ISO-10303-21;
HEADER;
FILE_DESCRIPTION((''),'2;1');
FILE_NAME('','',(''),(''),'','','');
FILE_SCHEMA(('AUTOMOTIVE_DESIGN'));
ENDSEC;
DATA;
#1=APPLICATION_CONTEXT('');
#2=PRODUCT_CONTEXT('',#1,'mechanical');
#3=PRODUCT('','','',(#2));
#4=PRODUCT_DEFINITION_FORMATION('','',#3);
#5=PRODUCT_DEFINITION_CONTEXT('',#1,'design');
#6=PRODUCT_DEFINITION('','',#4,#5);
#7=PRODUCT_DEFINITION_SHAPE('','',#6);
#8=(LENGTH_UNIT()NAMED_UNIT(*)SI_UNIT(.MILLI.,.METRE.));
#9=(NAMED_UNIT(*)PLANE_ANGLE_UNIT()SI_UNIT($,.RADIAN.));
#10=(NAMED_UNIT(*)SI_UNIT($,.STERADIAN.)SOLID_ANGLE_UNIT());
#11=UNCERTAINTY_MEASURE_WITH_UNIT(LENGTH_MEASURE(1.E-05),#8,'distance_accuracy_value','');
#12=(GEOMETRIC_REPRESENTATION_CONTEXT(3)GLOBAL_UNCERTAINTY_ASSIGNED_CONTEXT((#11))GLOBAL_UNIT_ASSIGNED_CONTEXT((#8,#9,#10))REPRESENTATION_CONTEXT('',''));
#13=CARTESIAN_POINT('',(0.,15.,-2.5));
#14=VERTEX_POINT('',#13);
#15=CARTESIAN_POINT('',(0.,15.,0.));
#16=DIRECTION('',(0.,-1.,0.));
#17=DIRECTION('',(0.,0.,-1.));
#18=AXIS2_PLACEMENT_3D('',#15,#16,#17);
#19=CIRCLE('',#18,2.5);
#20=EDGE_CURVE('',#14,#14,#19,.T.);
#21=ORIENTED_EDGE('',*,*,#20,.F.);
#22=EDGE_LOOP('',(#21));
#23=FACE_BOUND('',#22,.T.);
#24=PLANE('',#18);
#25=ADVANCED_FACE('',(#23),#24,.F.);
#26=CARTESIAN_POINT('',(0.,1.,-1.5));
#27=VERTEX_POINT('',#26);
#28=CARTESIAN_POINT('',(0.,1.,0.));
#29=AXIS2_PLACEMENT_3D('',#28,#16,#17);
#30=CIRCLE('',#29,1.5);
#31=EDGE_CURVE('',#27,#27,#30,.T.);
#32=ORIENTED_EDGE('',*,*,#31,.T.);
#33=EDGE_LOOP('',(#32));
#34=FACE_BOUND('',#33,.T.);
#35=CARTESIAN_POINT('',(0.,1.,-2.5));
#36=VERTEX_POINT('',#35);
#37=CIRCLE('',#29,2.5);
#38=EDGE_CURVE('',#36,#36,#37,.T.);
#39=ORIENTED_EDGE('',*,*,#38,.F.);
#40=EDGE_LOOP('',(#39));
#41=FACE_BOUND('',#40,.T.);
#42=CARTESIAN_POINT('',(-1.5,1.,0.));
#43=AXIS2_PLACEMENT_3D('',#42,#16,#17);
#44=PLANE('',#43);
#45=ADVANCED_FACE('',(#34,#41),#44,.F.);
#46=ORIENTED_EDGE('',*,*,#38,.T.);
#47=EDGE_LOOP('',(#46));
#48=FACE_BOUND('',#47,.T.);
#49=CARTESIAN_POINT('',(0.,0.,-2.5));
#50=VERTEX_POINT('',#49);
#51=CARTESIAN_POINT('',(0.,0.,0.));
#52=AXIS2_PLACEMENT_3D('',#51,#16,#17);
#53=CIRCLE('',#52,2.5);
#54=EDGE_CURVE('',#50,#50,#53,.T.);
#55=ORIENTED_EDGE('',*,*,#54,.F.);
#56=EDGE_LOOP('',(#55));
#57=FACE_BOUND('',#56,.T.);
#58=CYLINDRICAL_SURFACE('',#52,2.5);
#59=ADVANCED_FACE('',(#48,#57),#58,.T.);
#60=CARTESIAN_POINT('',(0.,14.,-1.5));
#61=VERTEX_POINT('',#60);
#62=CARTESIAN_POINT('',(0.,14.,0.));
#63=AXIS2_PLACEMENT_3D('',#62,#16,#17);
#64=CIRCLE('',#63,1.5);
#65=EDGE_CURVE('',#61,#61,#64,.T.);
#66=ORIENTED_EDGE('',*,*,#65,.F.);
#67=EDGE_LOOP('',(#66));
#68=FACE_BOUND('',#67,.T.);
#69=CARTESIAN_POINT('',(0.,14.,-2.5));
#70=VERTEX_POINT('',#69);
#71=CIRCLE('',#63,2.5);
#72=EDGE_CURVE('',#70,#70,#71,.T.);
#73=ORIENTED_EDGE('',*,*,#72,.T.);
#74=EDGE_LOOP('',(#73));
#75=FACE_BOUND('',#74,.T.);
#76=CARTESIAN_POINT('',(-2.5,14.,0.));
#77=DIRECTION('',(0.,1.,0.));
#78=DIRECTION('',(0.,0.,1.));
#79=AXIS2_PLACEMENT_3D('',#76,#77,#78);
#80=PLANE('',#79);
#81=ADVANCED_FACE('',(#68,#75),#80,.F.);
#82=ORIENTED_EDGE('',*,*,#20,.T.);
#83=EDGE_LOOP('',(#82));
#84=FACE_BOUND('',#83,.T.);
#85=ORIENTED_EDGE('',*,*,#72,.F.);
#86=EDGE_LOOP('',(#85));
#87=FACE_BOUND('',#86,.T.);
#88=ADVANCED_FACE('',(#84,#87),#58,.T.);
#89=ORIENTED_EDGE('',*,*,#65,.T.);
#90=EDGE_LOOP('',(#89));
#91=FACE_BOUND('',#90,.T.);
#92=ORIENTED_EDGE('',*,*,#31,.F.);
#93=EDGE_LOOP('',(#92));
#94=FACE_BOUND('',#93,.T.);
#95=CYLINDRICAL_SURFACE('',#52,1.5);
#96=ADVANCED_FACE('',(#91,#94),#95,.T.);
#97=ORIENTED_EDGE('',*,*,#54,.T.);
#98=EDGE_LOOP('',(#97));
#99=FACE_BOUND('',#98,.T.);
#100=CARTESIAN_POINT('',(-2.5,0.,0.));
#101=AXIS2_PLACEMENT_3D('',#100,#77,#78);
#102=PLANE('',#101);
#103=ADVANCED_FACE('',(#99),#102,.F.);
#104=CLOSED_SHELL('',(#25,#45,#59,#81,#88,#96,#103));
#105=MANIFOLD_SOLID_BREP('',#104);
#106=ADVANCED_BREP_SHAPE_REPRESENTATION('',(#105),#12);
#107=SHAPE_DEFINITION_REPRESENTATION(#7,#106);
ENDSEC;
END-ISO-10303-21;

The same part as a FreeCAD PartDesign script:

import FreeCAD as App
import Part
import Sketcher

doc = App.newDocument("Part")
body = doc.addObject("PartDesign::Body", "Body")

sketch1 = doc.addObject("Sketcher::SketchObject", "Sketch")
body.addObject(sketch1)
sketch1.AttachmentSupport = (doc.XY_Plane, [""])
sketch1.MapMode = "FlatFace"
sketch1.addGeometry([
    Part.LineSegment(App.Vector(0, 0, 0), App.Vector(0, 15, 0)),
    Part.LineSegment(App.Vector(0, 15, 0), App.Vector(-2.5, 15, 0)),
    Part.LineSegment(App.Vector(-2.5, 15, 0), App.Vector(-2.5, 14, 0)),
    Part.LineSegment(App.Vector(-2.5, 14, 0), App.Vector(-1.5, 14, 0)),
    Part.LineSegment(App.Vector(-1.5, 14, 0), App.Vector(-1.5, 1, 0)),
    Part.LineSegment(App.Vector(-1.5, 1, 0), App.Vector(-2.5, 1, 0)),
    Part.LineSegment(App.Vector(-2.5, 1, 0), App.Vector(-2.5, 0, 0)),
    Part.LineSegment(App.Vector(-2.5, 0, 0), App.Vector(0, 0, 0)),
], False)
sketch1.addConstraint([
    Sketcher.Constraint("Coincident", 0, 2, 1, 1),
    Sketcher.Constraint("Coincident", 1, 2, 2, 1),
    Sketcher.Constraint("Coincident", 2, 2, 3, 1),
    Sketcher.Constraint("Coincident", 3, 2, 4, 1),
    Sketcher.Constraint("Coincident", 4, 2, 5, 1),
    Sketcher.Constraint("Coincident", 5, 2, 6, 1),
    Sketcher.Constraint("Coincident", 6, 2, 7, 1),
    Sketcher.Constraint("Coincident", 7, 2, 0, 1),
    Sketcher.Constraint("Vertical", 0),
    Sketcher.Constraint("Horizontal", 1),
    Sketcher.Constraint("Vertical", 2),
    Sketcher.Constraint("Horizontal", 3),
    Sketcher.Constraint("Vertical", 4),
    Sketcher.Constraint("Horizontal", 5),
    Sketcher.Constraint("Vertical", 6),
    Sketcher.Constraint("Horizontal", 7),
    Sketcher.Constraint("Coincident", 7, 2, -1, 1),
    Sketcher.Constraint("Vertical", 2, 2, 5, 2),
    Sketcher.Constraint("Equal", 5, 2),
    Sketcher.Constraint("Equal", 2, 6),
    Sketcher.Constraint("DistanceX", 3, 1, 3, 2, 1.0),
    Sketcher.Constraint("DistanceY", 0, 1, 0, 2, 15.0),
    Sketcher.Constraint("DistanceX", 1, 2, 1, 1, 2.5),
])
revolution = doc.addObject("PartDesign::Revolution", "Revolution")
body.addObject(revolution)
revolution.Profile = sketch1
revolution.ReferenceAxis = (sketch1, ["V_Axis"])
revolution.Angle = 360

doc.recompute()
